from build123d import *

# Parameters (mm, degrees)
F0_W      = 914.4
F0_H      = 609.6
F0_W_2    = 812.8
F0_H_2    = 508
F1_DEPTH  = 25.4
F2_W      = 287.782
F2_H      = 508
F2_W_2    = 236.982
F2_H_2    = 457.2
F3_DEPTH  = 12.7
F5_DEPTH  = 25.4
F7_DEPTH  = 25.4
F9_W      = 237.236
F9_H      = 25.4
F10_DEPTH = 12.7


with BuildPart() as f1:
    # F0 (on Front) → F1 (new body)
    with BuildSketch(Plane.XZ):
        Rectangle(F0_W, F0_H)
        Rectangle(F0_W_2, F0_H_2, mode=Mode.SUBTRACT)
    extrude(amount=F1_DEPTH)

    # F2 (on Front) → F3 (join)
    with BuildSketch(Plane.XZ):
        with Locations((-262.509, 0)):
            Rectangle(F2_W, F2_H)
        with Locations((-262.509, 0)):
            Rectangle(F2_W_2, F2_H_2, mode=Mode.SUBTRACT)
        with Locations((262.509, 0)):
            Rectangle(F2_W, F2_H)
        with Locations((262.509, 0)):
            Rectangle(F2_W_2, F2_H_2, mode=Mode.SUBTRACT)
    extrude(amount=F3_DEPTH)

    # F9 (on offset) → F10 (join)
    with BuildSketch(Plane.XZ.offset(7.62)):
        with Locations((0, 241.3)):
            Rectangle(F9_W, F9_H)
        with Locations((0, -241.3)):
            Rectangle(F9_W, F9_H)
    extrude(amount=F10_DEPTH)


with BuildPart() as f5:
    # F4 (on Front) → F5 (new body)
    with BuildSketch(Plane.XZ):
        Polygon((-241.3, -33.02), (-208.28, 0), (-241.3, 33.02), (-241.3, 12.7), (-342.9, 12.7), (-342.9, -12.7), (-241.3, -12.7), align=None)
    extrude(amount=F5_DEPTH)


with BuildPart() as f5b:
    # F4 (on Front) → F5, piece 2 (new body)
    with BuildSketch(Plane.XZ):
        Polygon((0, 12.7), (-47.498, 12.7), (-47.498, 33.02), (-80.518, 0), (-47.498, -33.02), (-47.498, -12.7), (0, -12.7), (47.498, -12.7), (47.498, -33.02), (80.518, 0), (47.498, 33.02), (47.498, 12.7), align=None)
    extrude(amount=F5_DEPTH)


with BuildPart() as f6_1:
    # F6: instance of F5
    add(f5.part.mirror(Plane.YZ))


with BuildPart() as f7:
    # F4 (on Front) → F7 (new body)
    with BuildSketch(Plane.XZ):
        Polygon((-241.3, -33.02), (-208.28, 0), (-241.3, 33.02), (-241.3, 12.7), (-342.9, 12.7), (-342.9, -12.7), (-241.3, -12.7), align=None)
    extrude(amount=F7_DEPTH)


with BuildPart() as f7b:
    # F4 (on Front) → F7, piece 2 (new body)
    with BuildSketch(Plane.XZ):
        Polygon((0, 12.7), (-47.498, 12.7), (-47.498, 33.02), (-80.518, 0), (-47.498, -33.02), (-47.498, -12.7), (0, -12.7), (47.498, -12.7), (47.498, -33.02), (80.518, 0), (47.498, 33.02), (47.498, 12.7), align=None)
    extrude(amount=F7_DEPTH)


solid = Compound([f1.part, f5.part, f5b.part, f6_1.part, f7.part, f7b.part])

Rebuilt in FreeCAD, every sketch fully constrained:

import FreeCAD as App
import Part
import Sketcher
Q = App.Units.Quantity

doc = App.newDocument("Part")
params = doc.addObject("Spreadsheet::Sheet", "Params")
for row, (alias, value) in enumerate([
    ("sketch1_width", "36 in"),
    ("sketch1_width2", "32 in"),
    ("sketch1_height", "24 in"),
    ("sketch1_height2", "20 in"),
    ("pad1_length", "1 in"),
    ("sketch2_height", "20 in"),
    ("sketch2_height2", "18 in"),
    ("sketch2_width", "11.33 in"),
    ("pad2_length", "0.5 in"),
    ("sketch3_height", "1 in"),
    ("sketch3_width", "9.34 in"),
    ("pad3_length", "0.5 in"),
    ("sketch4_width", "4 in"),
    ("sketch4_height", "1 in"),
    ("sketch4_height2", "0.8 in"),
    ("pad4_length", "1 in"),
    ("sketch5_height", "0.8 in"),
    ("sketch5_width", "3.74 in"),
    ("pad5_length", "1 in"),
    ("sketch6_width", "4 in"),
    ("sketch6_height", "1 in"),
    ("sketch6_height2", "0.8 in"),
    ("pad6_length", "1 in"),
    ("sketch7_height", "0.8 in"),
    ("sketch7_width", "3.74 in"),
    ("pad7_length", "1 in"),
], start=1):
    params.set(f"A{row}", alias)
    params.set(f"B{row}", "=" + value)
    params.setAlias(f"B{row}", alias)

body = doc.addObject("PartDesign::Body", "Body")

# Sketch on XZ plane
sketch1 = body.newObject("Sketcher::SketchObject", "Sketch")
sketch1.AttachmentSupport = (doc.getObject("XZ_Plane"), [""])
sketch1.MapMode = "FlatFace"
sketch1.addGeometry([
    Part.LineSegment(App.Vector(-457, 305, 0), App.Vector(-457, -305, 0)),  # 0
    Part.LineSegment(App.Vector(-457, -305, 0), App.Vector(457, -305, 0)),  # 1
    Part.LineSegment(App.Vector(457, -305, 0), App.Vector(457, 305, 0)),  # 2
    Part.LineSegment(App.Vector(457, 305, 0), App.Vector(-457, 305, 0)),  # 3
    Part.LineSegment(App.Vector(406, -254, 0), App.Vector(-406, -254, 0)),  # 4
    Part.LineSegment(App.Vector(-406, -254, 0), App.Vector(-406, 254, 0)),  # 5
    Part.LineSegment(App.Vector(-406, 254, 0), App.Vector(406, 254, 0)),  # 6
    Part.LineSegment(App.Vector(406, 254, 0), App.Vector(406, -254, 0)),  # 7
], False)
sketch1.addConstraint([
    Sketcher.Constraint("Coincident", 0, 2, 1, 1),
    Sketcher.Constraint("Coincident", 1, 2, 2, 1),
    Sketcher.Constraint("Coincident", 2, 2, 3, 1),
    Sketcher.Constraint("Coincident", 3, 2, 0, 1),
    Sketcher.Constraint("Coincident", 4, 2, 5, 1),
    Sketcher.Constraint("Coincident", 5, 2, 6, 1),
    Sketcher.Constraint("Coincident", 6, 2, 7, 1),
    Sketcher.Constraint("Coincident", 7, 2, 4, 1),
    Sketcher.Constraint("Vertical", 0),
    Sketcher.Constraint("Horizontal", 1),
    Sketcher.Constraint("Vertical", 2),
    Sketcher.Constraint("Horizontal", 3),
    Sketcher.Constraint("Horizontal", 4),
    Sketcher.Constraint("Vertical", 5),
    Sketcher.Constraint("Horizontal", 6),
    Sketcher.Constraint("Vertical", 7),
    Sketcher.Constraint("Symmetric", 0, 2, 2, 2, -1, 1),
    Sketcher.Constraint("Symmetric", 4, 2, 6, 2, -1, 1),
    Sketcher.Constraint("DistanceX", 1, 1, 1, 2, Q("36 in")),
    Sketcher.Constraint("DistanceX", 4, 2, 4, 1, Q("32 in")),
    Sketcher.Constraint("DistanceY", 0, 2, 0, 1, Q("24 in")),
    Sketcher.Constraint("DistanceY", 5, 1, 5, 2, Q("20 in")),
])
sketch1.setExpression("Constraints[18]", "Params.sketch1_width")
sketch1.setExpression("Constraints[19]", "Params.sketch1_width2")
sketch1.setExpression("Constraints[20]", "Params.sketch1_height")
sketch1.setExpression("Constraints[21]", "Params.sketch1_height2")
pad1 = body.newObject("PartDesign::Pad", "Pad")
pad1.Profile = sketch1
pad1.setExpression("Length", "Params.pad1_length")

# Sketch on XZ plane
sketch2 = body.newObject("Sketcher::SketchObject", "Sketch001")
sketch2.AttachmentSupport = (doc.getObject("XZ_Plane"), [""])
sketch2.MapMode = "FlatFace"
sketch2.addGeometry([
    Part.LineSegment(App.Vector(-406, 254, 0), App.Vector(-406, -254, 0)),  # 0
    Part.LineSegment(App.Vector(-406, -254, 0), App.Vector(-119, -254, 0)),  # 1
    Part.LineSegment(App.Vector(-119, -254, 0), App.Vector(-119, 254, 0)),  # 2
    Part.LineSegment(App.Vector(-119, 254, 0), App.Vector(-406, 254, 0)),  # 3
    Part.LineSegment(App.Vector(-144, -229, 0), App.Vector(-381, -229, 0)),  # 4
    Part.LineSegment(App.Vector(-381, -229, 0), App.Vector(-381, 229, 0)),  # 5
    Part.LineSegment(App.Vector(-381, 229, 0), App.Vector(-144, 229, 0)),  # 6
    Part.LineSegment(App.Vector(-144, 229, 0), App.Vector(-144, -229, 0)),  # 7
    Part.LineSegment(App.Vector(119, 254, 0), App.Vector(119, -254, 0)),  # 8
    Part.LineSegment(App.Vector(119, -254, 0), App.Vector(406, -254, 0)),  # 9
    Part.LineSegment(App.Vector(406, -254, 0), App.Vector(406, 254, 0)),  # 10
    Part.LineSegment(App.Vector(406, 254, 0), App.Vector(119, 254, 0)),  # 11
    Part.LineSegment(App.Vector(381, -229, 0), App.Vector(144, -229, 0)),  # 12
    Part.LineSegment(App.Vector(144, -229, 0), App.Vector(144, 229, 0)),  # 13
    Part.LineSegment(App.Vector(144, 229, 0), App.Vector(381, 229, 0)),  # 14
    Part.LineSegment(App.Vector(381, 229, 0), App.Vector(381, -229, 0)),  # 15
], False)
sketch2.addConstraint([
    Sketcher.Constraint("Coincident", 0, 2, 1, 1),
    Sketcher.Constraint("Coincident", 1, 2, 2, 1),
    Sketcher.Constraint("Coincident", 2, 2, 3, 1),
    Sketcher.Constraint("Coincident", 3, 2, 0, 1),
    Sketcher.Constraint("Coincident", 4, 2, 5, 1),
    Sketcher.Constraint("Coincident", 5, 2, 6, 1),
    Sketcher.Constraint("Coincident", 6, 2, 7, 1),
    Sketcher.Constraint("Coincident", 7, 2, 4, 1),
    Sketcher.Constraint("Coincident", 8, 2, 9, 1),
    Sketcher.Constraint("Coincident", 9, 2, 10, 1),
    Sketcher.Constraint("Coincident", 10, 2, 11, 1),
    Sketcher.Constraint("Coincident", 11, 2, 8, 1),
    Sketcher.Constraint("Coincident", 12, 2, 13, 1),
    Sketcher.Constraint("Coincident", 13, 2, 14, 1),
    Sketcher.Constraint("Coincident", 14, 2, 15, 1),
    Sketcher.Constraint("Coincident", 15, 2, 12, 1),
    Sketcher.Constraint("Vertical", 0),
    Sketcher.Constraint("Horizontal", 1),
    Sketcher.Constraint("Vertical", 2),
    Sketcher.Constraint("Horizontal", 3),
    Sketcher.Constraint("Horizontal", 4),
    Sketcher.Constraint("Vertical", 5),
    Sketcher.Constraint("Horizontal", 6),
    Sketcher.Constraint("Vertical", 7),
    Sketcher.Constraint("Vertical", 8),
    Sketcher.Constraint("Horizontal", 9),
    Sketcher.Constraint("Vertical", 10),
    Sketcher.Constraint("Horizontal", 11),
    Sketcher.Constraint("Horizontal", 12),
    Sketcher.Constraint("Vertical", 13),
    Sketcher.Constraint("Horizontal", 14),
    Sketcher.Constraint("Vertical", 15),
    Sketcher.Constraint("Symmetric", 2, 2, 8, 2, -1, 1),
    Sketcher.Constraint("Symmetric", 0, 2, 10, 2, -1, 1),
    Sketcher.Constraint("Symmetric", 6, 2, 12, 2, -1, 1),
    Sketcher.Constraint("Symmetric", 4, 2, 14, 2, -1, 1),
    Sketcher.Constraint("Horizontal", 1, 2, 8, 2),
    Sketcher.Constraint("Horizontal", 7, 2, 12, 2),
    Sketcher.Constraint("DistanceY", 0, 2, 0, 1, Q("20 in")),
    Sketcher.Constraint("DistanceY", 5, 1, 5, 2, Q("18 in")),
    Sketcher.Constraint("DistanceX", 0, 2, -1, 1, Q("16 in")),
    Sketcher.Constraint("DistanceX", 4, 2, -1, 1, Q("15 in")),
    Sketcher.Constraint("DistanceX", 6, 2, 2, 2, Q("1 in")),
    Sketcher.Constraint("DistanceX", 1, 1, 1, 2, Q("11.33 in")),
])
sketch2.setExpression("Constraints[38]", "Params.sketch2_height")
sketch2.setExpression("Constraints[39]", "Params.sketch2_height2")
sketch2.setExpression("Constraints[43]", "Params.sketch2_width")
pad2 = body.newObject("PartDesign::Pad", "Pad001")
pad2.Profile = sketch2
pad2.setExpression("Length", "Params.pad2_length")

# Sketch on XZ plane
sketch3 = body.newObject("Sketcher::SketchObject", "Sketch002")
sketch3.AttachmentSupport = (doc.getObject("XZ_Plane"), [""])
sketch3.MapMode = "FlatFace"
sketch3.AttachmentOffset = App.Placement(App.Vector(0, 0, 0.3 * 25.4), App.Rotation())
sketch3.addGeometry([
    Part.LineSegment(App.Vector(-119, 254, 0), App.Vector(-119, 229, 0)),  # 0
    Part.LineSegment(App.Vector(-119, 229, 0), App.Vector(119, 229, 0)),  # 1
    Part.LineSegment(App.Vector(119, 229, 0), App.Vector(119, 254, 0)),  # 2
    Part.LineSegment(App.Vector(119, 254, 0), App.Vector(-119, 254, 0)),  # 3
    Part.LineSegment(App.Vector(-119, -229, 0), App.Vector(-119, -254, 0)),  # 4
    Part.LineSegment(App.Vector(-119, -254, 0), App.Vector(119, -254, 0)),  # 5
    Part.LineSegment(App.Vector(119, -254, 0), App.Vector(119, -229, 0)),  # 6
    Part.LineSegment(App.Vector(119, -229, 0), App.Vector(-119, -229, 0)),  # 7
], False)
sketch3.addConstraint([
    Sketcher.Constraint("Coincident", 0, 2, 1, 1),
    Sketcher.Constraint("Coincident", 1, 2, 2, 1),
    Sketcher.Constraint("Coincident", 2, 2, 3, 1),
    Sketcher.Constraint("Coincident", 3, 2, 0, 1),
    Sketcher.Constraint("Coincident", 4, 2, 5, 1),
    Sketcher.Constraint("Coincident", 5, 2, 6, 1),
    Sketcher.Constraint("Coincident", 6, 2, 7, 1),
    Sketcher.Constraint("Coincident", 7, 2, 4, 1),
    Sketcher.Constraint("Vertical", 0),
    Sketcher.Constraint("Horizontal", 1),
    Sketcher.Constraint("Vertical", 2),
    Sketcher.Constraint("Horizontal", 3),
    Sketcher.Constraint("Vertical", 4),
    Sketcher.Constraint("Horizontal", 5),
    Sketcher.Constraint("Vertical", 6),
    Sketcher.Constraint("Horizontal", 7),
    Sketcher.Constraint("Symmetric", 2, 2, 4, 2, -1, 1),
    Sketcher.Constraint("Symmetric", 0, 2, 6, 2, -1, 1),
    Sketcher.Constraint("Vertical", 3, 2, 4, 2),
    Sketcher.Constraint("DistanceY", 0, 2, 0, 1, Q("1 in")),
    Sketcher.Constraint("DistanceY", -1, 1, 0, 2, Q("9 in")),
    Sketcher.Constraint("DistanceX", 1, 1, 1, 2, Q("9.34 in")),
])
sketch3.setExpression("Constraints[19]", "Params.sketch3_height")
sketch3.setExpression("Constraints[21]", "Params.sketch3_width")
pad3 = body.newObject("PartDesign::Pad", "Pad002")
pad3.Profile = sketch3
pad3.setExpression("Length", "Params.pad3_length")
body2 = doc.addObject("PartDesign::Body", "Body001")

# Sketch on XZ plane
sketch4 = body2.newObject("Sketcher::SketchObject", "Sketch003")
sketch4.AttachmentSupport = (doc.getObject("XZ_Plane001"), [""])
sketch4.MapMode = "FlatFace"
sketch4.addGeometry([
    Part.LineSegment(App.Vector(-241, -33, 0), App.Vector(-208, 0, 0)),  # 0
    Part.LineSegment(App.Vector(-208, 0, 0), App.Vector(-241, 33, 0)),  # 1
    Part.LineSegment(App.Vector(-241, 33, 0), App.Vector(-241, 13, 0)),  # 2
    Part.LineSegment(App.Vector(-241, 13, 0), App.Vector(-343, 13, 0)),  # 3
    Part.LineSegment(App.Vector(-343, 13, 0), App.Vector(-343, -13, 0)),  # 4
    Part.LineSegment(App.Vector(-343, -13, 0), App.Vector(-241, -13, 0)),  # 5
    Part.LineSegment(App.Vector(-241, -13, 0), App.Vector(-241, -33, 0)),  # 6
], False)
sketch4.addConstraint([
    Sketcher.Constraint("Coincident", 0, 2, 1, 1),
    Sketcher.Constraint("Coincident", 1, 2, 2, 1),
    Sketcher.Constraint("Coincident", 2, 2, 3, 1),
    Sketcher.Constraint("Coincident", 3, 2, 4, 1),
    Sketcher.Constraint("Coincident", 4, 2, 5, 1),
    Sketcher.Constraint("Coincident", 5, 2, 6, 1),
    Sketcher.Constraint("Coincident", 6, 2, 0, 1),
    Sketcher.Constraint("Vertical", 2),
    Sketcher.Constraint("Horizontal", 3),
    Sketcher.Constraint("Vertical", 4),
    Sketcher.Constraint("Horizontal", 5),
    Sketcher.Constraint("Vertical", 6),
    Sketcher.Constraint("Symmetric", 2, 2, 5, 2, -1),
    Sketcher.Constraint("PointOnObject", 0, 2, -1),
    Sketcher.Constraint("Perpendicular", 0, 1),
    Sketcher.Constraint("Equal", 2, 6),
    Sketcher.Constraint("DistanceX", 3, 2, 3, 1, Q("4 in")),
    Sketcher.Constraint("DistanceY", 4, 2, 4, 1, Q("1 in")),
    Sketcher.Constraint("DistanceY", 2, 2, 2, 1, Q("0.8 in")),
    Sketcher.Constraint("DistanceX", 0, 2, -1, 1, Q("8.2 in")),
])
sketch4.setExpression("Constraints[16]", "Params.sketch4_width")
sketch4.setExpression("Constraints[17]", "Params.sketch4_height")
sketch4.setExpression("Constraints[18]", "Params.sketch4_height2")
pad4 = body2.newObject("PartDesign::Pad", "Pad003")
pad4.Profile = sketch4
pad4.setExpression("Length", "Params.pad4_length")
body3 = doc.addObject("PartDesign::Body", "Body002")

# Sketch on XZ plane
sketch5 = body3.newObject("Sketcher::SketchObject", "Sketch004")
sketch5.AttachmentSupport = (doc.getObject("XZ_Plane002"), [""])
sketch5.MapMode = "FlatFace"
sketch5.addGeometry([
    Part.LineSegment(App.Vector(-47, 13, 0), App.Vector(-47, 33, 0)),  # 0
    Part.LineSegment(App.Vector(-47, 33, 0), App.Vector(-81, 0, 0)),  # 1
    Part.LineSegment(App.Vector(-81, 0, 0), App.Vector(-47, -33, 0)),  # 2
    Part.LineSegment(App.Vector(-47, -33, 0), App.Vector(-47, -13, 0)),  # 3
    Part.LineSegment(App.Vector(-47, -13, 0), App.Vector(47, -13, 0)),  # 4
    Part.LineSegment(App.Vector(47, -13, 0), App.Vector(47, -33, 0)),  # 5
    Part.LineSegment(App.Vector(47, -33, 0), App.Vector(81, 0, 0)),  # 6
    Part.LineSegment(App.Vector(81, 0, 0), App.Vector(47, 33, 0)),  # 7
    Part.LineSegment(App.Vector(47, 33, 0), App.Vector(47, 13, 0)),  # 8
    Part.LineSegment(App.Vector(47, 13, 0), App.Vector(-47, 13, 0)),  # 9
], False)
sketch5.addConstraint([
    Sketcher.Constraint("Coincident", 0, 2, 1, 1),
    Sketcher.Constraint("Coincident", 1, 2, 2, 1),
    Sketcher.Constraint("Coincident", 2, 2, 3, 1),
    Sketcher.Constraint("Coincident", 3, 2, 4, 1),
    Sketcher.Constraint("Coincident", 4, 2, 5, 1),
    Sketcher.Constraint("Coincident", 5, 2, 6, 1),
    Sketcher.Constraint("Coincident", 6, 2, 7, 1),
    Sketcher.Constraint("Coincident", 7, 2, 8, 1),
    Sketcher.Constraint("Coincident", 8, 2, 9, 1),
    Sketcher.Constraint("Coincident", 9, 2, 0, 1),
    Sketcher.Constraint("Vertical", 0),
    Sketcher.Constraint("Vertical", 3),
    Sketcher.Constraint("Horizontal", 4),
    Sketcher.Constraint("Vertical", 5),
    Sketcher.Constraint("Vertical", 8),
    Sketcher.Constraint("Horizontal", 9),
    Sketcher.Constraint("Symmetric", 0, 2, 5, 2, -1, 1),
    Sketcher.Constraint("Symmetric", 1, 2, 6, 2, -1, 1),
    Sketcher.Constraint("Symmetric", 2, 2, 7, 2, -1, 1),
    Sketcher.Constraint("Symmetric", 2, 2, 5, 2, -2),
    Sketcher.Constraint("PointOnObject", 1, 2, -1),
    Sketcher.Constraint("Perpendicular", 1, 2),
    Sketcher.Constraint("Equal", 0, 3),
    Sketcher.Constraint("DistanceY", 0, 1, 0, 2, Q("0.8 in")),
    Sketcher.Constraint("DistanceY", 4, 2, 8, 2, Q("1 in")),
    Sketcher.Constraint("DistanceX", 4, 1, 4, 2, Q("3.74 in")),
])
sketch5.setExpression("Constraints[23]", "Params.sketch5_height")
sketch5.setExpression("Constraints[25]", "Params.sketch5_width")
pad5 = body3.newObject("PartDesign::Pad", "Pad004")
pad5.Profile = sketch5
pad5.setExpression("Length", "Params.pad5_length")
body4 = doc.addObject("PartDesign::Body", "Body003")
doc.recompute()

mirroring = doc.addObject("Part::Mirroring", "Mirroring")
mirroring.Source = body2
mirroring.Base = App.Vector(0, 0, 0)
mirroring.Normal = App.Vector(1, 0, 0)
body4.BaseFeature = mirroring
doc.recompute()
body5 = doc.addObject("PartDesign::Body", "Body004")

# Sketch on XZ plane
sketch6 = body5.newObject("Sketcher::SketchObject", "Sketch005")
sketch6.AttachmentSupport = (doc.getObject("XZ_Plane004"), [""])
sketch6.MapMode = "FlatFace"
sketch6.addGeometry([
    Part.LineSegment(App.Vector(-241, -33, 0), App.Vector(-208, 0, 0)),  # 0
    Part.LineSegment(App.Vector(-208, 0, 0), App.Vector(-241, 33, 0)),  # 1
    Part.LineSegment(App.Vector(-241, 33, 0), App.Vector(-241, 13, 0)),  # 2
    Part.LineSegment(App.Vector(-241, 13, 0), App.Vector(-343, 13, 0)),  # 3
    Part.LineSegment(App.Vector(-343, 13, 0), App.Vector(-343, -13, 0)),  # 4
    Part.LineSegment(App.Vector(-343, -13, 0), App.Vector(-241, -13, 0)),  # 5
    Part.LineSegment(App.Vector(-241, -13, 0), App.Vector(-241, -33, 0)),  # 6
], False)
sketch6.addConstraint([
    Sketcher.Constraint("Coincident", 0, 2, 1, 1),
    Sketcher.Constraint("Coincident", 1, 2, 2, 1),
    Sketcher.Constraint("Coincident", 2, 2, 3, 1),
    Sketcher.Constraint("Coincident", 3, 2, 4, 1),
    Sketcher.Constraint("Coincident", 4, 2, 5, 1),
    Sketcher.Constraint("Coincident", 5, 2, 6, 1),
    Sketcher.Constraint("Coincident", 6, 2, 0, 1),
    Sketcher.Constraint("Vertical", 2),
    Sketcher.Constraint("Horizontal", 3),
    Sketcher.Constraint("Vertical", 4),
    Sketcher.Constraint("Horizontal", 5),
    Sketcher.Constraint("Vertical", 6),
    Sketcher.Constraint("Symmetric", 2, 2, 5, 2, -1),
    Sketcher.Constraint("PointOnObject", 0, 2, -1),
    Sketcher.Constraint("Perpendicular", 0, 1),
    Sketcher.Constraint("Equal", 2, 6),
    Sketcher.Constraint("DistanceX", 3, 2, 3, 1, Q("4 in")),
    Sketcher.Constraint("DistanceY", 4, 2, 4, 1, Q("1 in")),
    Sketcher.Constraint("DistanceY", 2, 2, 2, 1, Q("0.8 in")),
    Sketcher.Constraint("DistanceX", 0, 2, -1, 1, Q("8.2 in")),
])
sketch6.setExpression("Constraints[16]", "Params.sketch6_width")
sketch6.setExpression("Constraints[17]", "Params.sketch6_height")
sketch6.setExpression("Constraints[18]", "Params.sketch6_height2")
pad6 = body5.newObject("PartDesign::Pad", "Pad005")
pad6.Profile = sketch6
pad6.setExpression("Length", "Params.pad6_length")
body6 = doc.addObject("PartDesign::Body", "Body005")

# Sketch on XZ plane
sketch7 = body6.newObject("Sketcher::SketchObject", "Sketch006")
sketch7.AttachmentSupport = (doc.getObject("XZ_Plane005"), [""])
sketch7.MapMode = "FlatFace"
sketch7.addGeometry([
    Part.LineSegment(App.Vector(-47, 13, 0), App.Vector(-47, 33, 0)),  # 0
    Part.LineSegment(App.Vector(-47, 33, 0), App.Vector(-81, 0, 0)),  # 1
    Part.LineSegment(App.Vector(-81, 0, 0), App.Vector(-47, -33, 0)),  # 2
    Part.LineSegment(App.Vector(-47, -33, 0), App.Vector(-47, -13, 0)),  # 3
    Part.LineSegment(App.Vector(-47, -13, 0), App.Vector(47, -13, 0)),  # 4
    Part.LineSegment(App.Vector(47, -13, 0), App.Vector(47, -33, 0)),  # 5
    Part.LineSegment(App.Vector(47, -33, 0), App.Vector(81, 0, 0)),  # 6
    Part.LineSegment(App.Vector(81, 0, 0), App.Vector(47, 33, 0)),  # 7
    Part.LineSegment(App.Vector(47, 33, 0), App.Vector(47, 13, 0)),  # 8
    Part.LineSegment(App.Vector(47, 13, 0), App.Vector(-47, 13, 0)),  # 9
], False)
sketch7.addConstraint([
    Sketcher.Constraint("Coincident", 0, 2, 1, 1),
    Sketcher.Constraint("Coincident", 1, 2, 2, 1),
    Sketcher.Constraint("Coincident", 2, 2, 3, 1),
    Sketcher.Constraint("Coincident", 3, 2, 4, 1),
    Sketcher.Constraint("Coincident", 4, 2, 5, 1),
    Sketcher.Constraint("Coincident", 5, 2, 6, 1),
    Sketcher.Constraint("Coincident", 6, 2, 7, 1),
    Sketcher.Constraint("Coincident", 7, 2, 8, 1),
    Sketcher.Constraint("Coincident", 8, 2, 9, 1),
    Sketcher.Constraint("Coincident", 9, 2, 0, 1),
    Sketcher.Constraint("Vertical", 0),
    Sketcher.Constraint("Vertical", 3),
    Sketcher.Constraint("Horizontal", 4),
    Sketcher.Constraint("Vertical", 5),
    Sketcher.Constraint("Vertical", 8),
    Sketcher.Constraint("Horizontal", 9),
    Sketcher.Constraint("Symmetric", 0, 2, 5, 2, -1, 1),
    Sketcher.Constraint("Symmetric", 1, 2, 6, 2, -1, 1),
    Sketcher.Constraint("Symmetric", 2, 2, 7, 2, -1, 1),
    Sketcher.Constraint("Symmetric", 2, 2, 5, 2, -2),
    Sketcher.Constraint("PointOnObject", 1, 2, -1),
    Sketcher.Constraint("Perpendicular", 1, 2),
    Sketcher.Constraint("Equal", 0, 3),
    Sketcher.Constraint("DistanceY", 0, 1, 0, 2, Q("0.8 in")),
    Sketcher.Constraint("DistanceY", 4, 2, 8, 2, Q("1 in")),
    Sketcher.Constraint("DistanceX", 4, 1, 4, 2, Q("3.74 in")),
])
sketch7.setExpression("Constraints[23]", "Params.sketch7_height")
sketch7.setExpression("Constraints[25]", "Params.sketch7_width")
pad7 = body6.newObject("PartDesign::Pad", "Pad006")
pad7.Profile = sketch7
pad7.setExpression("Length", "Params.pad7_length")
mirroring.Visibility = False

doc.recompute()
